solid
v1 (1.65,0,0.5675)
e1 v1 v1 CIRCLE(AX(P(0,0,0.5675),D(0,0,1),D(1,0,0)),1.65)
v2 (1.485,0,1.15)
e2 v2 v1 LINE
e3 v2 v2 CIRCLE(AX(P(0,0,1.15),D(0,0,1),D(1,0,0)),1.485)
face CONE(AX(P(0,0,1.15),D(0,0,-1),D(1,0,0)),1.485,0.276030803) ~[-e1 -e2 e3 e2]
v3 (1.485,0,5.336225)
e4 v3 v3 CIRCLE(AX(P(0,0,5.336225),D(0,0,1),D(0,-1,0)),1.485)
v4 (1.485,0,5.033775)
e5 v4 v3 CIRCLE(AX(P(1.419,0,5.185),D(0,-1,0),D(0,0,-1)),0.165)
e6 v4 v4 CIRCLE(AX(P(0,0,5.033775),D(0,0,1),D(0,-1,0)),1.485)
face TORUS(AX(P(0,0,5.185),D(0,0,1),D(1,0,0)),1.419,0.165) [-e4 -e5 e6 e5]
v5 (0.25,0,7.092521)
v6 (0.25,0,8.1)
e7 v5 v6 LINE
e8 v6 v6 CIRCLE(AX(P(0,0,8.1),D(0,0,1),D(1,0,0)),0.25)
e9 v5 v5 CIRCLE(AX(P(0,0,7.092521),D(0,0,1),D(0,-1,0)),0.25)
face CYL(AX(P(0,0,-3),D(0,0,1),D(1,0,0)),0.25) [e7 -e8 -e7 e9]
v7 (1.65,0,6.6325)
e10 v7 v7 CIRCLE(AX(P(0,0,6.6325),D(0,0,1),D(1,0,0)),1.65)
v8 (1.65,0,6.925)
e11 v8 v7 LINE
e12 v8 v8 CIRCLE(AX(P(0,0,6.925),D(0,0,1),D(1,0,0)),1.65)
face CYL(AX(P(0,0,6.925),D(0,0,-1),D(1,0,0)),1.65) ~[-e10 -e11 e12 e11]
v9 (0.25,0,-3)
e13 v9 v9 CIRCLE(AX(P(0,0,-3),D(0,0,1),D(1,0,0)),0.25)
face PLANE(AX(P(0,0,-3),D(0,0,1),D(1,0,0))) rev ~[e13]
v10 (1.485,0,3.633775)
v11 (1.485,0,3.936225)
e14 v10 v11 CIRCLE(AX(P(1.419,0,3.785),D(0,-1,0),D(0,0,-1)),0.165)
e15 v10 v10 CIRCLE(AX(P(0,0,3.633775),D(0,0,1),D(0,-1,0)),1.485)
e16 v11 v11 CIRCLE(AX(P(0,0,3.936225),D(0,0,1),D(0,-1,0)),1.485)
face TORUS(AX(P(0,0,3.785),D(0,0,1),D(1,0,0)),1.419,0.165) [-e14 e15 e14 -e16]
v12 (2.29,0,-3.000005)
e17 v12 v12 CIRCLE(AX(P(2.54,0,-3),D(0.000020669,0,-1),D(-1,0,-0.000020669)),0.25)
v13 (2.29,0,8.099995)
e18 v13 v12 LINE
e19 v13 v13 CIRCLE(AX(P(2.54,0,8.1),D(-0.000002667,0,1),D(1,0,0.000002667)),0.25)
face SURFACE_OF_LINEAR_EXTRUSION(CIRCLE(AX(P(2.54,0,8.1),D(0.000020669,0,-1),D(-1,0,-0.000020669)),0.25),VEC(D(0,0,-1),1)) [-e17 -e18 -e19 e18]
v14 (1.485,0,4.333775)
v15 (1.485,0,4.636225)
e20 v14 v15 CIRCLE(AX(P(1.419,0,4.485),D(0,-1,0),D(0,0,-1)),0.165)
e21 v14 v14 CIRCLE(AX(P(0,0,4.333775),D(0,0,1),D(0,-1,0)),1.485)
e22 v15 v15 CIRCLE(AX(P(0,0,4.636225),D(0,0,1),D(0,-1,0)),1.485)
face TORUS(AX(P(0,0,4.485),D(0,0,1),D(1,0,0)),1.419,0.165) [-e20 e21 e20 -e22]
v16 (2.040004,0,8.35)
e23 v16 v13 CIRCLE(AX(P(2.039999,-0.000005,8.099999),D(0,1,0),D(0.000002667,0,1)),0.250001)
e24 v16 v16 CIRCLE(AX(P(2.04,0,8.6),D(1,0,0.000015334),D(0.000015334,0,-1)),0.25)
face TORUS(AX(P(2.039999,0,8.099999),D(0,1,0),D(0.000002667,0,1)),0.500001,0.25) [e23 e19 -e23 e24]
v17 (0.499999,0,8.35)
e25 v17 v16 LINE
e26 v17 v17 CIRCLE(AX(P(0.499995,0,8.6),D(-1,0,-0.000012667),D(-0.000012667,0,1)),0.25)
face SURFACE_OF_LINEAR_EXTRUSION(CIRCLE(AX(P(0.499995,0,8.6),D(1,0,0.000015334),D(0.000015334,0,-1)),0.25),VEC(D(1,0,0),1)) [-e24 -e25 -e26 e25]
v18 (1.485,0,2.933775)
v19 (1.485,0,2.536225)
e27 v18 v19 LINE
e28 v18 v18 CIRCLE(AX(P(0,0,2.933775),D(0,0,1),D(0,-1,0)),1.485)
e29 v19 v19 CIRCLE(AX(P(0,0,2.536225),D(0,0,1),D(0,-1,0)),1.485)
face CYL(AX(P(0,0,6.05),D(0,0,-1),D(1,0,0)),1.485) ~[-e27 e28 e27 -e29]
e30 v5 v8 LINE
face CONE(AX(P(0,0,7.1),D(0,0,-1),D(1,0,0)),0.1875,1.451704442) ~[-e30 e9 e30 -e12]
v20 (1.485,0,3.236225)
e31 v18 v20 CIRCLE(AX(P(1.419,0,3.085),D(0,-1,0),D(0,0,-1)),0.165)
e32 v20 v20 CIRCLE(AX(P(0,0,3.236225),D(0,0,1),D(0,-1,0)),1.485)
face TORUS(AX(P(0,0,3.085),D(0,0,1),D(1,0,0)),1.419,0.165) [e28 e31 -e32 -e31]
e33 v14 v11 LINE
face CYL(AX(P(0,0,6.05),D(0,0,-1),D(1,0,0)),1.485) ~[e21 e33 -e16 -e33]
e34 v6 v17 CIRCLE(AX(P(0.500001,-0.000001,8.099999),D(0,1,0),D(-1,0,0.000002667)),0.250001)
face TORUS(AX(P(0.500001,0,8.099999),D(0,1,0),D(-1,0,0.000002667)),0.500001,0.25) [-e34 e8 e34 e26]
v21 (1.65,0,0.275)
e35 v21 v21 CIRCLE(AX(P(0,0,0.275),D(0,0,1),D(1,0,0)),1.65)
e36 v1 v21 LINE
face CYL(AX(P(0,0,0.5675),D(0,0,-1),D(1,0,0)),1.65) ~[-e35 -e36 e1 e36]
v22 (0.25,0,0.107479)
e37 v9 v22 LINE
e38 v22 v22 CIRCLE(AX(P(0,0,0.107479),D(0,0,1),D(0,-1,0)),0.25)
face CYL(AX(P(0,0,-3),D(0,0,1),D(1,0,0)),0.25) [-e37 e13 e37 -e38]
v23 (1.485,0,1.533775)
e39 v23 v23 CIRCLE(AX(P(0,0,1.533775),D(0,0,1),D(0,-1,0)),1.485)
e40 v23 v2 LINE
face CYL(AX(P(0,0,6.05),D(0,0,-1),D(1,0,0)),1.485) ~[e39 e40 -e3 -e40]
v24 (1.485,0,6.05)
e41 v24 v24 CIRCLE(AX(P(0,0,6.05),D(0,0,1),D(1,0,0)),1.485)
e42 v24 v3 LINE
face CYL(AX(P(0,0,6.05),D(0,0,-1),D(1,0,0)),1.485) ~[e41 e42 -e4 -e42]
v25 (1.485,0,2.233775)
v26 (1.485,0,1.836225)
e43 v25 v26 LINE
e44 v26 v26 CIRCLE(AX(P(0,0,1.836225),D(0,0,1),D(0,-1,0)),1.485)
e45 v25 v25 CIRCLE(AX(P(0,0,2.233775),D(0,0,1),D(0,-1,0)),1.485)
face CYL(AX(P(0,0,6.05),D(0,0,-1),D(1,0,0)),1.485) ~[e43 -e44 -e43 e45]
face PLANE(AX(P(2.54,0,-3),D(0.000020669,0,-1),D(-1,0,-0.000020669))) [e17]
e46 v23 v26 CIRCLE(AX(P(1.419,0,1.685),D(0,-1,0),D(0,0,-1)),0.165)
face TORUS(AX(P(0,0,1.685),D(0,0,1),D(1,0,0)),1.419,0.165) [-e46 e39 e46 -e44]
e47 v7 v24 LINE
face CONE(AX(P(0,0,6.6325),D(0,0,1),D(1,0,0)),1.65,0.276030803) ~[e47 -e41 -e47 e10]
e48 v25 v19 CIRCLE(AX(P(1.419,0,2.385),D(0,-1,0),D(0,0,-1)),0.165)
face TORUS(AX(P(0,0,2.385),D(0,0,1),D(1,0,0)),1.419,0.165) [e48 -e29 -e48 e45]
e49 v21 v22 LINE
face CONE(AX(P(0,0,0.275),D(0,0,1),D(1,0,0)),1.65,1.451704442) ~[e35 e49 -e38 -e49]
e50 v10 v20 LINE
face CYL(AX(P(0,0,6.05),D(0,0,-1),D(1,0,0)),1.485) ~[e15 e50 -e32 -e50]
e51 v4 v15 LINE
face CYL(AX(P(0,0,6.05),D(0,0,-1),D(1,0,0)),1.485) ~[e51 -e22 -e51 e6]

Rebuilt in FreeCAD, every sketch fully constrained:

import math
import FreeCAD as App
import Part
import Sketcher


def add_polygon(sketch, points):
    """Adds a closed chain of lines whose ends are joined by coincident constraints."""
    first, n = sketch.GeometryCount, len(points)
    for a, b in zip(points, points[1:] + points[:1]):
        sketch.addGeometry(Part.LineSegment(App.Vector(*a, 0), App.Vector(*b, 0)), False)
    for i in range(n):
        sketch.addConstraint(Sketcher.Constraint("Coincident", first + i, 2, first + (i + 1) % n, 1))

doc = App.newDocument("Part")
body = doc.addObject("PartDesign::Body", "Body")

# Sketch on XZ plane
sketch1 = body.newObject("Sketcher::SketchObject", "Sketch")
sketch1.AttachmentSupport = (doc.getObject("XZ_Plane"), [""])
sketch1.MapMode = "FlatFace"
add_polygon(sketch1, [(0, 7.1), (0, 0.1), (0.1875, 0.1), (1.65, 0.275), (1.65, 0.5675), (1.485, 1.15), (1.485, 6.05), (1.65, 6.6325), (1.65, 6.925), (0.1875, 7.1)])  # lines 0-9
sketch1.addConstraint([
    Sketcher.Constraint("Vertical", 0),
    Sketcher.Constraint("Horizontal", 1),
    Sketcher.Constraint("Vertical", 3),
    Sketcher.Constraint("Vertical", 5),
    Sketcher.Constraint("Vertical", 7),
    Sketcher.Constraint("Horizontal", 9),
    Sketcher.Constraint("PointOnObject", 0, 2, -2),
    Sketcher.Constraint("Vertical", 3, 2, 6, 2),
    Sketcher.Constraint("Vertical", 1, 2, 8, 2),
    Sketcher.Constraint("Equal", 3, 7),
    Sketcher.Constraint("Equal", 4, 6),
    Sketcher.Constraint("Equal", 2, 8),
    Sketcher.Constraint("DistanceY", 0, 2, 0, 1, 7.0),
    Sketcher.Constraint("DistanceY", 5, 1, 5, 2, 4.9),
    Sketcher.Constraint("DistanceY", -1, 1, 0, 2, 0.1),
    Sketcher.Constraint("DistanceX", -1, 1, 2, 2, 1.65),
    Sketcher.Constraint("DistanceY", 2, 2, 7, 2, 6.65),
    Sketcher.Constraint("DistanceX", 1, 1, 1, 2, 0.1875),
    Sketcher.Constraint("DistanceY", 3, 1, 3, 2, 0.2925),
    Sketcher.Constraint("DistanceX", -1, 1, 4, 2, 1.485),
])
revolution = body.newObject("PartDesign::Revolution", "Revolution")
revolution.Profile = sketch1
revolution.ReferenceAxis = (sketch1, ["V_Axis"])
revolution.Angle = 360
body2 = doc.addObject("PartDesign::Body", "Body001")

# Sketch on XY plane
sketch2 = body2.newObject("Sketcher::SketchObject", "Sketch001")
sketch2.AttachmentSupport = (doc.getObject("XY_Plane001"), [""])
sketch2.MapMode = "FlatFace"
sketch2.AttachmentOffset = App.Placement(App.Vector(0, 0, -2), App.Rotation())
sketch2.addGeometry(Part.Circle(App.Vector(0, 0, 0), App.Vector(0, 0, 1), 0.25), False)
sketch2.addConstraint([
    Sketcher.Constraint("Coincident", 0, 3, -1, 1),
    Sketcher.Constraint("Diameter", 0, 0.5),
])

# Sketch on XZ plane
sketch3 = body2.newObject("Sketcher::SketchObject", "Sketch002")
sketch3.AttachmentSupport = (doc.getObject("XZ_Plane001"), [""])
sketch3.MapMode = "FlatFace"
sketch3.addGeometry([
    Part.LineSegment(App.Vector(0, -3, 0), App.Vector(0, 8.1, 0)),  # 0
    Part.ArcOfCircle(Part.Circle(App.Vector(0.500001, 8.099999, 0), App.Vector(0, 0, 1), 0.500001), math.radians(90.000726), math.radians(179.999847)),  # 1
    Part.LineSegment(App.Vector(0.499995, 8.6, 0), App.Vector(2.04, 8.6, 0)),  # 2
    Part.ArcOfCircle(Part.Circle(App.Vector(2.039999, 8.099999, 0), App.Vector(0, 0, 1), 0.500001), math.radians(0.000153), math.radians(89.999847)),  # 3
    Part.LineSegment(App.Vector(2.54, 8.1, 0), App.Vector(2.54, -3, 0)),  # 4
], False)
sketch3.addConstraint([
    Sketcher.Constraint("Coincident", 0, 2, 1, 2),
    Sketcher.Constraint("Coincident", 1, 1, 2, 1),
    Sketcher.Constraint("Coincident", 2, 2, 3, 2),
    Sketcher.Constraint("Coincident", 3, 1, 4, 1),
    Sketcher.Constraint("Vertical", 0),
    Sketcher.Constraint("Horizontal", 2),
    Sketcher.Constraint("Vertical", 4),
    Sketcher.Constraint("Equal", 1, 3),
    Sketcher.Constraint("PointOnObject", 0, 1, -2),
    Sketcher.Constraint("Horizontal", 3, 3, 0, 2),
    Sketcher.Constraint("Horizontal", 0, 2, 3, 1),
    Sketcher.Constraint("Horizontal", 0, 1, 4, 2),
    Sketcher.Constraint("Vertical", 3, 3, 2, 2),
    Sketcher.Constraint("Radius", 1, 0.500001),
    Sketcher.Constraint("DistanceY", 0, 1, 0, 2, 11.1),
    Sketcher.Constraint("DistanceY", 0, 1, -1, 1, 3.0),
    Sketcher.Constraint("DistanceX", -1, 1, 3, 3, 2.039999),
    Sketcher.Constraint("DistanceX", 2, 1, 2, 2, 1.540005),
])
doc.recompute()

additivepipe = body2.newObject("PartDesign::AdditivePipe", "AdditivePipe")
additivepipe.Profile = sketch2
additivepipe.Spine = (sketch3, ["Edge1", "Edge2", "Edge3", "Edge4", "Edge5"])
body3 = doc.addObject("PartDesign::Body", "Body002")

# Sketch on XZ plane
sketch4 = body3.newObject("Sketcher::SketchObject", "Sketch003")
sketch4.AttachmentSupport = (doc.getObject("XZ_Plane002"), [""])
sketch4.MapMode = "FlatFace"
sketch4.addGeometry([
    Part.LineSegment(App.Vector(1.32, 5.72, 0), App.Vector(1.32, 1.15, 0)),  # 0
    Part.LineSegment(App.Vector(1.32, 1.15, 0), App.Vector(1.419, 1.15, 0)),  # 1
    Part.LineSegment(App.Vector(1.419, 1.15, 0), App.Vector(1.419, 1.52, 0)),  # 2
    Part.ArcOfCircle(Part.Circle(App.Vector(1.419, 1.685, 0), App.Vector(0, 0, 1), 0.165), math.radians(-90), math.radians(90)),  # 3
    Part.LineSegment(App.Vector(1.419, 1.85, 0), App.Vector(1.419, 2.22, 0)),  # 4
    Part.ArcOfCircle(Part.Circle(App.Vector(1.419, 2.385, 0), App.Vector(0, 0, 1), 0.165), math.radians(-90), math.radians(90)),  # 5
    Part.LineSegment(App.Vector(1.419, 2.55, 0), App.Vector(1.419, 2.92, 0)),  # 6
    Part.ArcOfCircle(Part.Circle(App.Vector(1.419, 3.085, 0), App.Vector(0, 0, 1), 0.165), math.radians(-90), math.radians(90)),  # 7
    Part.LineSegment(App.Vector(1.419, 3.25, 0), App.Vector(1.419, 3.62, 0)),  # 8
    Part.ArcOfCircle(Part.Circle(App.Vector(1.419, 3.785, 0), App.Vector(0, 0, 1), 0.165), math.radians(-90), math.radians(90)),  # 9
    Part.LineSegment(App.Vector(1.419, 3.95, 0), App.Vector(1.419, 4.32, 0)),  # 10
    Part.ArcOfCircle(Part.Circle(App.Vector(1.419, 4.485, 0), App.Vector(0, 0, 1), 0.165), math.radians(-90), math.radians(90)),  # 11
    Part.LineSegment(App.Vector(1.419, 4.65, 0), App.Vector(1.419, 5.02, 0)),  # 12
    Part.ArcOfCircle(Part.Circle(App.Vector(1.419, 5.185, 0), App.Vector(0, 0, 1), 0.165), math.radians(-90), math.radians(90)),  # 13
    Part.LineSegment(App.Vector(1.419, 5.35, 0), App.Vector(1.419, 5.72, 0)),  # 14
    Part.LineSegment(App.Vector(1.419, 5.72, 0), App.Vector(1.32, 5.72, 0)),  # 15
], False)
sketch4.addConstraint([
    Sketcher.Constraint("Coincident", 0, 2, 1, 1),
    Sketcher.Constraint("Coincident", 1, 2, 2, 1),
    Sketcher.Constraint("Coincident", 2, 2, 3, 1),
    Sketcher.Constraint("Coincident", 3, 2, 4, 1),
    Sketcher.Constraint("Coincident", 4, 2, 5, 1),
    Sketcher.Constraint("Coincident", 5, 2, 6, 1),
    Sketcher.Constraint("Coincident", 6, 2, 7, 1),
    Sketcher.Constraint("Coincident", 7, 2, 8, 1),
    Sketcher.Constraint("Coincident", 8, 2, 9, 1),
    Sketcher.Constraint("Coincident", 9, 2, 10, 1),
    Sketcher.Constraint("Coincident", 10, 2, 11, 1),
    Sketcher.Constraint("Coincident", 11, 2, 12, 1),
    Sketcher.Constraint("Coincident", 12, 2, 13, 1),
    Sketcher.Constraint("Coincident", 13, 2, 14, 1),
    Sketcher.Constraint("Coincident", 14, 2, 15, 1),
    Sketcher.Constraint("Coincident", 15, 2, 0, 1),
    Sketcher.Constraint("Vertical", 0),
    Sketcher.Constraint("Horizontal", 1),
    Sketcher.Constraint("Vertical", 2),
    Sketcher.Constraint("Vertical", 4),
    Sketcher.Constraint("Vertical", 6),
    Sketcher.Constraint("Vertical", 8),
    Sketcher.Constraint("Vertical", 10),
    Sketcher.Constraint("Vertical", 12),
    Sketcher.Constraint("Vertical", 14),
    Sketcher.Constraint("Horizontal", 15),
    Sketcher.Constraint("Equal", 3, 5),
    Sketcher.Constraint("Equal", 5, 7),
    Sketcher.Constraint("Equal", 7, 9),
    Sketcher.Constraint("Equal", 9, 11),
    Sketcher.Constraint("Equal", 11, 13),
    Sketcher.Constraint("Vertical", 3, 3, 5, 3),
    Sketcher.Constraint("Vertical", 5, 3, 7, 3),
    Sketcher.Constraint("Vertical", 7, 3, 9, 3),
    Sketcher.Constraint("Vertical", 9, 3, 11, 3),
    Sketcher.Constraint("Vertical", 11, 3, 13, 3),
    Sketcher.Constraint("Vertical", 13, 3, 1, 2),
    Sketcher.Constraint("Vertical", 2, 2, 3, 2),
    Sketcher.Constraint("Vertical", 4, 2, 5, 2),
    Sketcher.Constraint("Vertical", 6, 2, 7, 2),
    Sketcher.Constraint("Vertical", 8, 2, 9, 2),
    Sketcher.Constraint("Vertical", 10, 2, 11, 2),
    Sketcher.Constraint("Vertical", 12, 2, 13, 2),
    Sketcher.Constraint("Equal", 2, 4),
    Sketcher.Constraint("Equal", 4, 6),
    Sketcher.Constraint("Equal", 6, 8),
    Sketcher.Constraint("Equal", 8, 10),
    Sketcher.Constraint("Equal", 10, 12),
    Sketcher.Constraint("Equal", 12, 14),
    Sketcher.Constraint("Radius", 3, 0.165),
    Sketcher.Constraint("DistanceY", 0, 2, 0, 1, 4.57),
    Sketcher.Constraint("DistanceX", 1, 1, 1, 2, 0.099),
    Sketcher.Constraint("DistanceX", -1, 1, 0, 2, 1.32),
    Sketcher.Constraint("DistanceY", -1, 1, 0, 2, 1.15),
])
revolution2 = body3.newObject("PartDesign::Revolution", "Revolution001")
revolution2.Profile = sketch4
revolution2.ReferenceAxis = (sketch4, ["V_Axis"])
revolution2.Angle = 360
doc.recompute()

boolean = body3.newObject("PartDesign::Boolean", "Boolean")
boolean.Type = "Fuse"
boolean.addObjects([body])
doc.recompute()

boolean2 = body3.newObject("PartDesign::Boolean", "Boolean001")
boolean2.Type = "Fuse"
boolean2.addObjects([body2])

doc.recompute()
